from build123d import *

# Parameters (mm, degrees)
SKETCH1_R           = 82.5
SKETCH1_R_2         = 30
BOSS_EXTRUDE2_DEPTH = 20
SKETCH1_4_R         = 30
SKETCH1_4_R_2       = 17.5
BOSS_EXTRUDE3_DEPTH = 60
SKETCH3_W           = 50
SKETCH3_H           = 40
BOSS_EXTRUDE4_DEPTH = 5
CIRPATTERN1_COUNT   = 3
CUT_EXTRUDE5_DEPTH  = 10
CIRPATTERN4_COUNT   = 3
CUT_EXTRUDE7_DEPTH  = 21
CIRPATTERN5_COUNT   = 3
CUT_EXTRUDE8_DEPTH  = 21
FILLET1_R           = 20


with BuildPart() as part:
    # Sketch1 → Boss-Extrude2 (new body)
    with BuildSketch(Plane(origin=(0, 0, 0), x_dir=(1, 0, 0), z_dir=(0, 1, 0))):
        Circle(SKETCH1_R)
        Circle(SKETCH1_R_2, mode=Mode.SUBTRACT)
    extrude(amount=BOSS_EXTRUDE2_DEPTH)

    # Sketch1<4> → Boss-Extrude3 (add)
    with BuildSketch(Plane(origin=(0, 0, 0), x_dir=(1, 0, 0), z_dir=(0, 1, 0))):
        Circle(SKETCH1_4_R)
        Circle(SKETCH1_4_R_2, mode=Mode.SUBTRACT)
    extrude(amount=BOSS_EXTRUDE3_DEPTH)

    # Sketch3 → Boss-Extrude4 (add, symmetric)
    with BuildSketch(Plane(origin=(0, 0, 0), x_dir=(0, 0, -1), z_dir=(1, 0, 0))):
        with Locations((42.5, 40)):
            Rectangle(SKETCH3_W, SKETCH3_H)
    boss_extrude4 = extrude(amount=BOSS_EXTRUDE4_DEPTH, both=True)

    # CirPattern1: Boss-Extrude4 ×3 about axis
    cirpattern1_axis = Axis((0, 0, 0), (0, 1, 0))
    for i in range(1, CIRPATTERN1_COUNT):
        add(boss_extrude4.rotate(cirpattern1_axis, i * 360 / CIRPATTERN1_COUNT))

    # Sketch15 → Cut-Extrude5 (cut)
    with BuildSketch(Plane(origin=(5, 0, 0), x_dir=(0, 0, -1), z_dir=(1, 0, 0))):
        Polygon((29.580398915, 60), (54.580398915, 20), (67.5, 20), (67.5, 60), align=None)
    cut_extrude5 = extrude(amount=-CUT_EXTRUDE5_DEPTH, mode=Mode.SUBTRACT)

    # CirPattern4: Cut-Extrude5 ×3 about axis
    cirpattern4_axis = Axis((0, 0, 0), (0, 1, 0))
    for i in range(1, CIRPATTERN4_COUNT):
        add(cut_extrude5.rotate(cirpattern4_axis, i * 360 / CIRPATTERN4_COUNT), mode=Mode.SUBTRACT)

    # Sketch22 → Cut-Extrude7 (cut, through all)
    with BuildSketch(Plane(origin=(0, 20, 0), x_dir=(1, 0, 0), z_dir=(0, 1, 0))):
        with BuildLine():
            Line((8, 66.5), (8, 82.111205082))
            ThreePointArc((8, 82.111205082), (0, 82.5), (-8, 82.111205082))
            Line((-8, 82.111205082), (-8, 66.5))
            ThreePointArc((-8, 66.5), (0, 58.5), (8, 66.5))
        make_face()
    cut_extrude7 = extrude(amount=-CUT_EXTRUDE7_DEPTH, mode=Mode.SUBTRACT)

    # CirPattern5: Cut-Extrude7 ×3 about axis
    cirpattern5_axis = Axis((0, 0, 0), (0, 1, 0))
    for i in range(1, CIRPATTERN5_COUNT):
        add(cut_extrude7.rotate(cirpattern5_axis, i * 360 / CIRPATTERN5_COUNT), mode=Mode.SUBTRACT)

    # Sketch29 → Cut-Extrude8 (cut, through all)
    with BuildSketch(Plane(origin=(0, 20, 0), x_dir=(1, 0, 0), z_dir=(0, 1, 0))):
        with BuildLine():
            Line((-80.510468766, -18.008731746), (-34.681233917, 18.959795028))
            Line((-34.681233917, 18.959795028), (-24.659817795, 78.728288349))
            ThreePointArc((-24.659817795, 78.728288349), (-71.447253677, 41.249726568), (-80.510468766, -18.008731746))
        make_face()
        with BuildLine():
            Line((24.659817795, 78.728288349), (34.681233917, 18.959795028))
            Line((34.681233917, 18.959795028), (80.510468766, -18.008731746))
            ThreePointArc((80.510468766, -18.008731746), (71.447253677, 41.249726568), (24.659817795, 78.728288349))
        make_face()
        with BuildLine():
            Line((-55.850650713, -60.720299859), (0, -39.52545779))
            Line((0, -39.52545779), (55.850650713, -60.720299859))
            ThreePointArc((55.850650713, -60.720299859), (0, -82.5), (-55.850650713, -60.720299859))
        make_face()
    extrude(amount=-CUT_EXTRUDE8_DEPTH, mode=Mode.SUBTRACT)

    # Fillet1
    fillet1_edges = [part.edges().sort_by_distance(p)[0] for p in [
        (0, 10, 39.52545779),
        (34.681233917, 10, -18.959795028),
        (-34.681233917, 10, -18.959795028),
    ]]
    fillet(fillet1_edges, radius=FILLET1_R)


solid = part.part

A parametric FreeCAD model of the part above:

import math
import FreeCAD as App
import Part
import Sketcher


def edges_at(feature, points):
    """Names of the edges that pass closest to the given points."""
    edges = feature.Shape.Edges
    near = lambda p: min(range(len(edges)), key=lambda i: edges[i].distToShape(Part.Vertex(*p))[0])
    return sorted({f"Edge{near(p) + 1}" for p in points})

doc = App.newDocument("Part")
body = doc.addObject("PartDesign::Body", "Body")

# Sketch on XZ plane
sketch1 = body.newObject("Sketcher::SketchObject", "Sketch")
sketch1.AttachmentSupport = (doc.getObject("XZ_Plane"), [""])
sketch1.MapMode = "FlatFace"
sketch1.addGeometry([
    Part.Circle(App.Vector(0, 0, 0), App.Vector(0, 0, 1), 82.5),
    Part.Circle(App.Vector(0, 0, 0), App.Vector(0, 0, 1), 30),
], False)
sketch1.addConstraint([
    Sketcher.Constraint("Coincident", 0, 3, -1, 1),
    Sketcher.Constraint("Coincident", 1, 3, -1, 1),
    Sketcher.Constraint("Diameter", 0, 165.0),
    Sketcher.Constraint("Diameter", 1, 60.0),
])
pad1 = body.newObject("PartDesign::Pad", "Pad")
pad1.Profile = sketch1
pad1.Length = 20
pad1.Reversed = True

# Sketch on XZ plane
sketch2 = body.newObject("Sketcher::SketchObject", "Sketch001")
sketch2.AttachmentSupport = (doc.getObject("XZ_Plane"), [""])
sketch2.MapMode = "FlatFace"
sketch2.addGeometry([
    Part.Circle(App.Vector(0, 0, 0), App.Vector(0, 0, 1), 30),
    Part.Circle(App.Vector(0, 0, 0), App.Vector(0, 0, 1), 17.5),
], False)
sketch2.addConstraint([
    Sketcher.Constraint("Coincident", 0, 3, -1, 1),
    Sketcher.Constraint("Coincident", 1, 3, -1, 1),
    Sketcher.Constraint("Diameter", 0, 60.0),
    Sketcher.Constraint("Diameter", 1, 35.0),
])
pad2 = body.newObject("PartDesign::Pad", "Pad001")
pad2.Profile = sketch2
pad2.Length = 60
pad2.Reversed = True

# Sketch on YZ plane
sketch3 = body.newObject("Sketcher::SketchObject", "Sketch002")
sketch3.AttachmentSupport = (doc.getObject("YZ_Plane"), [""])
sketch3.MapMode = "FlatFace"
sketch3.addGeometry([
    Part.LineSegment(App.Vector(60, -17.5, 0), App.Vector(20, -17.5, 0)),
    Part.LineSegment(App.Vector(20, -17.5, 0), App.Vector(20, -67.5, 0)),
    Part.LineSegment(App.Vector(20, -67.5, 0), App.Vector(60, -67.5, 0)),
    Part.LineSegment(App.Vector(60, -67.5, 0), App.Vector(60, -17.5, 0)),
], False)
sketch3.addConstraint([
    Sketcher.Constraint("Coincident", 0, 2, 1, 1),
    Sketcher.Constraint("Coincident", 1, 2, 2, 1),
    Sketcher.Constraint("Coincident", 2, 2, 3, 1),
    Sketcher.Constraint("Coincident", 3, 2, 0, 1),
    Sketcher.Constraint("Horizontal", 0),
    Sketcher.Constraint("Vertical", 1),
    Sketcher.Constraint("Horizontal", 2),
    Sketcher.Constraint("Vertical", 3),
    Sketcher.Constraint("DistanceX", 0, 2, 0, 1, 40.0),
    Sketcher.Constraint("DistanceY", 1, 2, 1, 1, 50.0),
    Sketcher.Constraint("DistanceX", -1, 1, 0, 2, 20.0),
    Sketcher.Constraint("DistanceY", 0, 2, -1, 1, 17.5),
])
pad3 = body.newObject("PartDesign::Pad", "Pad002")
pad3.Profile = sketch3
pad3.Length = 10
pad3.Midplane = True
doc.recompute()

polarpattern = body.newObject("PartDesign::PolarPattern", "PolarPattern")
polarpattern.Originals = [pad3]
polarpattern.Axis = (doc.getObject("Y_Axis"), [""])
polarpattern.Angle = 360
polarpattern.Occurrences = 3
body.Tip = polarpattern

# Sketch on YZ plane
sketch4 = body.newObject("Sketcher::SketchObject", "Sketch003")
sketch4.AttachmentSupport = (doc.getObject("YZ_Plane"), [""])
sketch4.MapMode = "FlatFace"
sketch4.AttachmentOffset = App.Placement(App.Vector(0, 0, 5), App.Rotation())
sketch4.addGeometry([
    Part.LineSegment(App.Vector(60, -29.580399, 0), App.Vector(20, -54.580399, 0)),
    Part.LineSegment(App.Vector(20, -54.580399, 0), App.Vector(20, -67.5, 0)),
    Part.LineSegment(App.Vector(20, -67.5, 0), App.Vector(60, -67.5, 0)),
    Part.LineSegment(App.Vector(60, -67.5, 0), App.Vector(60, -29.580399, 0)),
], False)
sketch4.addConstraint([
    Sketcher.Constraint("Coincident", 0, 2, 1, 1),
    Sketcher.Constraint("Coincident", 1, 2, 2, 1),
    Sketcher.Constraint("Coincident", 2, 2, 3, 1),
    Sketcher.Constraint("Coincident", 3, 2, 0, 1),
    Sketcher.Constraint("Vertical", 1),
    Sketcher.Constraint("Horizontal", 2),
    Sketcher.Constraint("Vertical", 3),
    Sketcher.Constraint("DistanceX", 2, 1, 2, 2, 40.0),
    Sketcher.Constraint("DistanceX", -1, 1, 0, 2, 20.0),
    Sketcher.Constraint("DistanceY", 0, 2, 3, 2, 25.0),
    Sketcher.Constraint("DistanceY", 1, 2, -1, 1, 67.5),
    Sketcher.Constraint("DistanceY", 1, 2, 1, 1, 12.919601),
])
pocket1 = body.newObject("PartDesign::Pocket", "Pocket")
pocket1.Profile = sketch4
pocket1.Length = 10
doc.recompute()

polarpattern2 = body.newObject("PartDesign::PolarPattern", "PolarPattern001")
polarpattern2.Originals = [pocket1]
polarpattern2.Axis = (doc.getObject("Y_Axis"), [""])
polarpattern2.Angle = 360
polarpattern2.Occurrences = 3
body.Tip = polarpattern2

# Sketch on XZ plane
sketch5 = body.newObject("Sketcher::SketchObject", "Sketch004")
sketch5.AttachmentSupport = (doc.getObject("XZ_Plane"), [""])
sketch5.MapMode = "FlatFace"
sketch5.AttachmentOffset = App.Placement(App.Vector(0, 0, -20), App.Rotation())
sketch5.addGeometry([
    Part.LineSegment(App.Vector(8, -66.5, 0), App.Vector(8, -82.111205, 0)),
    Part.ArcOfCircle(Part.Circle(App.Vector(0, 0, 0), App.Vector(0, 0, 1), 82.5), math.radians(-95.564699), math.radians(-84.435301)),
    Part.LineSegment(App.Vector(-8, -82.111205, 0), App.Vector(-8, -66.5, 0)),
    Part.ArcOfCircle(Part.Circle(App.Vector(0, -66.5, 0), App.Vector(0, 0, 1), 8), math.radians(0), math.radians(180)),
], False)
sketch5.addConstraint([
    Sketcher.Constraint("Coincident", 0, 2, 1, 2),
    Sketcher.Constraint("Coincident", 1, 1, 2, 1),
    Sketcher.Constraint("Tangent", 2, 2, 3, 2),
    Sketcher.Constraint("Tangent", 3, 1, 0, 1),
    Sketcher.Constraint("Vertical", 0),
    Sketcher.Constraint("Vertical", 2),
    Sketcher.Constraint("Coincident", 1, 3, -1, 1),
    Sketcher.Constraint("PointOnObject", 3, 3, -2),
    Sketcher.Constraint("Radius", 3, 8.0),
    Sketcher.Constraint("Radius", 1, 82.5),
    Sketcher.Constraint("DistanceY", 3, 3, -1, 1, 66.5),
])
pocket2 = body.newObject("PartDesign::Pocket", "Pocket001")
pocket2.Profile = sketch5
pocket2.Type = "ThroughAll"
pocket2.Reversed = True
doc.recompute()

polarpattern3 = body.newObject("PartDesign::PolarPattern", "PolarPattern002")
polarpattern3.Originals = [pocket2]
polarpattern3.Axis = (doc.getObject("Y_Axis"), [""])
polarpattern3.Angle = 360
polarpattern3.Occurrences = 3
body.Tip = polarpattern3

# Sketch on XZ plane
sketch6 = body.newObject("Sketcher::SketchObject", "Sketch005")
sketch6.AttachmentSupport = (doc.getObject("XZ_Plane"), [""])
sketch6.MapMode = "FlatFace"
sketch6.AttachmentOffset = App.Placement(App.Vector(0, 0, -20), App.Rotation())
sketch6.addGeometry([
    Part.LineSegment(App.Vector(-80.510469, 18.008732, 0), App.Vector(-34.681234, -18.959795, 0)),  # 0
    Part.LineSegment(App.Vector(-34.681234, -18.959795, 0), App.Vector(-24.659818, -78.728288, 0)),  # 1
    Part.ArcOfCircle(Part.Circle(App.Vector(0, 0, 0), App.Vector(0, 0, 1), 82.5), math.radians(167.391521), math.radians(252.60804)),  # 2
    Part.LineSegment(App.Vector(24.659818, -78.728288, 0), App.Vector(34.681234, -18.959795, 0)),  # 3
    Part.LineSegment(App.Vector(34.681234, -18.959795, 0), App.Vector(80.510469, 18.008732, 0)),  # 4
    Part.ArcOfCircle(Part.Circle(App.Vector(0, 0, 0), App.Vector(0, 0, 1), 82.5), math.radians(-72.60804), math.radians(12.608479)),  # 5
    Part.LineSegment(App.Vector(0, 39.525458, 0), App.Vector(-55.850651, 60.7203, 0)),  # 6
    Part.ArcOfCircle(Part.Circle(App.Vector(0, 0, 0), App.Vector(0, 0, 1), 82.5), math.radians(47.39209), math.radians(132.60791)),  # 7
    Part.LineSegment(App.Vector(55.850651, 60.7203, 0), App.Vector(0, 39.525458, 0)),  # 8
], False)
sketch6.addConstraint([
    Sketcher.Constraint("Coincident", 0, 2, 1, 1),
    Sketcher.Constraint("Coincident", 1, 2, 2, 2),
    Sketcher.Constraint("Coincident", 2, 1, 0, 1),
    Sketcher.Constraint("Coincident", 3, 2, 4, 1),
    Sketcher.Constraint("Coincident", 4, 2, 5, 2),
    Sketcher.Constraint("Coincident", 5, 1, 3, 1),
    Sketcher.Constraint("Coincident", 6, 2, 7, 2),
    Sketcher.Constraint("Coincident", 7, 1, 8, 1),
    Sketcher.Constraint("Coincident", 8, 2, 6, 1),
    Sketcher.Constraint("Coincident", 2, 3, -1, 1),
    Sketcher.Constraint("Coincident", 5, 3, -1, 1),
    Sketcher.Constraint("Coincident", 7, 3, -1, 1),
    Sketcher.Constraint("Equal", 2, 5),
    Sketcher.Constraint("Equal", 5, 7),
    Sketcher.Constraint("Symmetric", 0, 2, 3, 2, -2),
    Sketcher.Constraint("PointOnObject", 8, 2, -2),
    Sketcher.Constraint("Horizontal", 2, 1, 4, 2),
    Sketcher.Constraint("Horizontal", 1, 2, 5, 1),
    Sketcher.Constraint("Horizontal", 6, 2, 7, 1),
    Sketcher.Constraint("Radius", 2, 82.5),
    Sketcher.Constraint("DistanceY", -1, 1, 6, 2, 60.7203),
    Sketcher.Constraint("Distance", 1, 60.602818),
    Sketcher.Constraint("Distance", 6, 59.737061),
    Sketcher.Constraint("DistanceY", 1, 2, -1, 1, 78.728288),
    Sketcher.Constraint("DistanceX", 2, 1, -1, 1, 80.510469),
    Sketcher.Constraint("DistanceX", 1, 2, 3, 2, 59.341052),
])
pocket3 = body.newObject("PartDesign::Pocket", "Pocket002")
pocket3.Profile = sketch6
pocket3.Type = "ThroughAll"
pocket3.Reversed = True
doc.recompute()

fillet = body.newObject("PartDesign::Fillet", "Fillet")
fillet.Base = (pocket3, edges_at(pocket3, [(0, 10, 39.525), (34.681, 10, -18.96), (-34.681, 10, -18.96)]))
fillet.Radius = 20

doc.recompute()
